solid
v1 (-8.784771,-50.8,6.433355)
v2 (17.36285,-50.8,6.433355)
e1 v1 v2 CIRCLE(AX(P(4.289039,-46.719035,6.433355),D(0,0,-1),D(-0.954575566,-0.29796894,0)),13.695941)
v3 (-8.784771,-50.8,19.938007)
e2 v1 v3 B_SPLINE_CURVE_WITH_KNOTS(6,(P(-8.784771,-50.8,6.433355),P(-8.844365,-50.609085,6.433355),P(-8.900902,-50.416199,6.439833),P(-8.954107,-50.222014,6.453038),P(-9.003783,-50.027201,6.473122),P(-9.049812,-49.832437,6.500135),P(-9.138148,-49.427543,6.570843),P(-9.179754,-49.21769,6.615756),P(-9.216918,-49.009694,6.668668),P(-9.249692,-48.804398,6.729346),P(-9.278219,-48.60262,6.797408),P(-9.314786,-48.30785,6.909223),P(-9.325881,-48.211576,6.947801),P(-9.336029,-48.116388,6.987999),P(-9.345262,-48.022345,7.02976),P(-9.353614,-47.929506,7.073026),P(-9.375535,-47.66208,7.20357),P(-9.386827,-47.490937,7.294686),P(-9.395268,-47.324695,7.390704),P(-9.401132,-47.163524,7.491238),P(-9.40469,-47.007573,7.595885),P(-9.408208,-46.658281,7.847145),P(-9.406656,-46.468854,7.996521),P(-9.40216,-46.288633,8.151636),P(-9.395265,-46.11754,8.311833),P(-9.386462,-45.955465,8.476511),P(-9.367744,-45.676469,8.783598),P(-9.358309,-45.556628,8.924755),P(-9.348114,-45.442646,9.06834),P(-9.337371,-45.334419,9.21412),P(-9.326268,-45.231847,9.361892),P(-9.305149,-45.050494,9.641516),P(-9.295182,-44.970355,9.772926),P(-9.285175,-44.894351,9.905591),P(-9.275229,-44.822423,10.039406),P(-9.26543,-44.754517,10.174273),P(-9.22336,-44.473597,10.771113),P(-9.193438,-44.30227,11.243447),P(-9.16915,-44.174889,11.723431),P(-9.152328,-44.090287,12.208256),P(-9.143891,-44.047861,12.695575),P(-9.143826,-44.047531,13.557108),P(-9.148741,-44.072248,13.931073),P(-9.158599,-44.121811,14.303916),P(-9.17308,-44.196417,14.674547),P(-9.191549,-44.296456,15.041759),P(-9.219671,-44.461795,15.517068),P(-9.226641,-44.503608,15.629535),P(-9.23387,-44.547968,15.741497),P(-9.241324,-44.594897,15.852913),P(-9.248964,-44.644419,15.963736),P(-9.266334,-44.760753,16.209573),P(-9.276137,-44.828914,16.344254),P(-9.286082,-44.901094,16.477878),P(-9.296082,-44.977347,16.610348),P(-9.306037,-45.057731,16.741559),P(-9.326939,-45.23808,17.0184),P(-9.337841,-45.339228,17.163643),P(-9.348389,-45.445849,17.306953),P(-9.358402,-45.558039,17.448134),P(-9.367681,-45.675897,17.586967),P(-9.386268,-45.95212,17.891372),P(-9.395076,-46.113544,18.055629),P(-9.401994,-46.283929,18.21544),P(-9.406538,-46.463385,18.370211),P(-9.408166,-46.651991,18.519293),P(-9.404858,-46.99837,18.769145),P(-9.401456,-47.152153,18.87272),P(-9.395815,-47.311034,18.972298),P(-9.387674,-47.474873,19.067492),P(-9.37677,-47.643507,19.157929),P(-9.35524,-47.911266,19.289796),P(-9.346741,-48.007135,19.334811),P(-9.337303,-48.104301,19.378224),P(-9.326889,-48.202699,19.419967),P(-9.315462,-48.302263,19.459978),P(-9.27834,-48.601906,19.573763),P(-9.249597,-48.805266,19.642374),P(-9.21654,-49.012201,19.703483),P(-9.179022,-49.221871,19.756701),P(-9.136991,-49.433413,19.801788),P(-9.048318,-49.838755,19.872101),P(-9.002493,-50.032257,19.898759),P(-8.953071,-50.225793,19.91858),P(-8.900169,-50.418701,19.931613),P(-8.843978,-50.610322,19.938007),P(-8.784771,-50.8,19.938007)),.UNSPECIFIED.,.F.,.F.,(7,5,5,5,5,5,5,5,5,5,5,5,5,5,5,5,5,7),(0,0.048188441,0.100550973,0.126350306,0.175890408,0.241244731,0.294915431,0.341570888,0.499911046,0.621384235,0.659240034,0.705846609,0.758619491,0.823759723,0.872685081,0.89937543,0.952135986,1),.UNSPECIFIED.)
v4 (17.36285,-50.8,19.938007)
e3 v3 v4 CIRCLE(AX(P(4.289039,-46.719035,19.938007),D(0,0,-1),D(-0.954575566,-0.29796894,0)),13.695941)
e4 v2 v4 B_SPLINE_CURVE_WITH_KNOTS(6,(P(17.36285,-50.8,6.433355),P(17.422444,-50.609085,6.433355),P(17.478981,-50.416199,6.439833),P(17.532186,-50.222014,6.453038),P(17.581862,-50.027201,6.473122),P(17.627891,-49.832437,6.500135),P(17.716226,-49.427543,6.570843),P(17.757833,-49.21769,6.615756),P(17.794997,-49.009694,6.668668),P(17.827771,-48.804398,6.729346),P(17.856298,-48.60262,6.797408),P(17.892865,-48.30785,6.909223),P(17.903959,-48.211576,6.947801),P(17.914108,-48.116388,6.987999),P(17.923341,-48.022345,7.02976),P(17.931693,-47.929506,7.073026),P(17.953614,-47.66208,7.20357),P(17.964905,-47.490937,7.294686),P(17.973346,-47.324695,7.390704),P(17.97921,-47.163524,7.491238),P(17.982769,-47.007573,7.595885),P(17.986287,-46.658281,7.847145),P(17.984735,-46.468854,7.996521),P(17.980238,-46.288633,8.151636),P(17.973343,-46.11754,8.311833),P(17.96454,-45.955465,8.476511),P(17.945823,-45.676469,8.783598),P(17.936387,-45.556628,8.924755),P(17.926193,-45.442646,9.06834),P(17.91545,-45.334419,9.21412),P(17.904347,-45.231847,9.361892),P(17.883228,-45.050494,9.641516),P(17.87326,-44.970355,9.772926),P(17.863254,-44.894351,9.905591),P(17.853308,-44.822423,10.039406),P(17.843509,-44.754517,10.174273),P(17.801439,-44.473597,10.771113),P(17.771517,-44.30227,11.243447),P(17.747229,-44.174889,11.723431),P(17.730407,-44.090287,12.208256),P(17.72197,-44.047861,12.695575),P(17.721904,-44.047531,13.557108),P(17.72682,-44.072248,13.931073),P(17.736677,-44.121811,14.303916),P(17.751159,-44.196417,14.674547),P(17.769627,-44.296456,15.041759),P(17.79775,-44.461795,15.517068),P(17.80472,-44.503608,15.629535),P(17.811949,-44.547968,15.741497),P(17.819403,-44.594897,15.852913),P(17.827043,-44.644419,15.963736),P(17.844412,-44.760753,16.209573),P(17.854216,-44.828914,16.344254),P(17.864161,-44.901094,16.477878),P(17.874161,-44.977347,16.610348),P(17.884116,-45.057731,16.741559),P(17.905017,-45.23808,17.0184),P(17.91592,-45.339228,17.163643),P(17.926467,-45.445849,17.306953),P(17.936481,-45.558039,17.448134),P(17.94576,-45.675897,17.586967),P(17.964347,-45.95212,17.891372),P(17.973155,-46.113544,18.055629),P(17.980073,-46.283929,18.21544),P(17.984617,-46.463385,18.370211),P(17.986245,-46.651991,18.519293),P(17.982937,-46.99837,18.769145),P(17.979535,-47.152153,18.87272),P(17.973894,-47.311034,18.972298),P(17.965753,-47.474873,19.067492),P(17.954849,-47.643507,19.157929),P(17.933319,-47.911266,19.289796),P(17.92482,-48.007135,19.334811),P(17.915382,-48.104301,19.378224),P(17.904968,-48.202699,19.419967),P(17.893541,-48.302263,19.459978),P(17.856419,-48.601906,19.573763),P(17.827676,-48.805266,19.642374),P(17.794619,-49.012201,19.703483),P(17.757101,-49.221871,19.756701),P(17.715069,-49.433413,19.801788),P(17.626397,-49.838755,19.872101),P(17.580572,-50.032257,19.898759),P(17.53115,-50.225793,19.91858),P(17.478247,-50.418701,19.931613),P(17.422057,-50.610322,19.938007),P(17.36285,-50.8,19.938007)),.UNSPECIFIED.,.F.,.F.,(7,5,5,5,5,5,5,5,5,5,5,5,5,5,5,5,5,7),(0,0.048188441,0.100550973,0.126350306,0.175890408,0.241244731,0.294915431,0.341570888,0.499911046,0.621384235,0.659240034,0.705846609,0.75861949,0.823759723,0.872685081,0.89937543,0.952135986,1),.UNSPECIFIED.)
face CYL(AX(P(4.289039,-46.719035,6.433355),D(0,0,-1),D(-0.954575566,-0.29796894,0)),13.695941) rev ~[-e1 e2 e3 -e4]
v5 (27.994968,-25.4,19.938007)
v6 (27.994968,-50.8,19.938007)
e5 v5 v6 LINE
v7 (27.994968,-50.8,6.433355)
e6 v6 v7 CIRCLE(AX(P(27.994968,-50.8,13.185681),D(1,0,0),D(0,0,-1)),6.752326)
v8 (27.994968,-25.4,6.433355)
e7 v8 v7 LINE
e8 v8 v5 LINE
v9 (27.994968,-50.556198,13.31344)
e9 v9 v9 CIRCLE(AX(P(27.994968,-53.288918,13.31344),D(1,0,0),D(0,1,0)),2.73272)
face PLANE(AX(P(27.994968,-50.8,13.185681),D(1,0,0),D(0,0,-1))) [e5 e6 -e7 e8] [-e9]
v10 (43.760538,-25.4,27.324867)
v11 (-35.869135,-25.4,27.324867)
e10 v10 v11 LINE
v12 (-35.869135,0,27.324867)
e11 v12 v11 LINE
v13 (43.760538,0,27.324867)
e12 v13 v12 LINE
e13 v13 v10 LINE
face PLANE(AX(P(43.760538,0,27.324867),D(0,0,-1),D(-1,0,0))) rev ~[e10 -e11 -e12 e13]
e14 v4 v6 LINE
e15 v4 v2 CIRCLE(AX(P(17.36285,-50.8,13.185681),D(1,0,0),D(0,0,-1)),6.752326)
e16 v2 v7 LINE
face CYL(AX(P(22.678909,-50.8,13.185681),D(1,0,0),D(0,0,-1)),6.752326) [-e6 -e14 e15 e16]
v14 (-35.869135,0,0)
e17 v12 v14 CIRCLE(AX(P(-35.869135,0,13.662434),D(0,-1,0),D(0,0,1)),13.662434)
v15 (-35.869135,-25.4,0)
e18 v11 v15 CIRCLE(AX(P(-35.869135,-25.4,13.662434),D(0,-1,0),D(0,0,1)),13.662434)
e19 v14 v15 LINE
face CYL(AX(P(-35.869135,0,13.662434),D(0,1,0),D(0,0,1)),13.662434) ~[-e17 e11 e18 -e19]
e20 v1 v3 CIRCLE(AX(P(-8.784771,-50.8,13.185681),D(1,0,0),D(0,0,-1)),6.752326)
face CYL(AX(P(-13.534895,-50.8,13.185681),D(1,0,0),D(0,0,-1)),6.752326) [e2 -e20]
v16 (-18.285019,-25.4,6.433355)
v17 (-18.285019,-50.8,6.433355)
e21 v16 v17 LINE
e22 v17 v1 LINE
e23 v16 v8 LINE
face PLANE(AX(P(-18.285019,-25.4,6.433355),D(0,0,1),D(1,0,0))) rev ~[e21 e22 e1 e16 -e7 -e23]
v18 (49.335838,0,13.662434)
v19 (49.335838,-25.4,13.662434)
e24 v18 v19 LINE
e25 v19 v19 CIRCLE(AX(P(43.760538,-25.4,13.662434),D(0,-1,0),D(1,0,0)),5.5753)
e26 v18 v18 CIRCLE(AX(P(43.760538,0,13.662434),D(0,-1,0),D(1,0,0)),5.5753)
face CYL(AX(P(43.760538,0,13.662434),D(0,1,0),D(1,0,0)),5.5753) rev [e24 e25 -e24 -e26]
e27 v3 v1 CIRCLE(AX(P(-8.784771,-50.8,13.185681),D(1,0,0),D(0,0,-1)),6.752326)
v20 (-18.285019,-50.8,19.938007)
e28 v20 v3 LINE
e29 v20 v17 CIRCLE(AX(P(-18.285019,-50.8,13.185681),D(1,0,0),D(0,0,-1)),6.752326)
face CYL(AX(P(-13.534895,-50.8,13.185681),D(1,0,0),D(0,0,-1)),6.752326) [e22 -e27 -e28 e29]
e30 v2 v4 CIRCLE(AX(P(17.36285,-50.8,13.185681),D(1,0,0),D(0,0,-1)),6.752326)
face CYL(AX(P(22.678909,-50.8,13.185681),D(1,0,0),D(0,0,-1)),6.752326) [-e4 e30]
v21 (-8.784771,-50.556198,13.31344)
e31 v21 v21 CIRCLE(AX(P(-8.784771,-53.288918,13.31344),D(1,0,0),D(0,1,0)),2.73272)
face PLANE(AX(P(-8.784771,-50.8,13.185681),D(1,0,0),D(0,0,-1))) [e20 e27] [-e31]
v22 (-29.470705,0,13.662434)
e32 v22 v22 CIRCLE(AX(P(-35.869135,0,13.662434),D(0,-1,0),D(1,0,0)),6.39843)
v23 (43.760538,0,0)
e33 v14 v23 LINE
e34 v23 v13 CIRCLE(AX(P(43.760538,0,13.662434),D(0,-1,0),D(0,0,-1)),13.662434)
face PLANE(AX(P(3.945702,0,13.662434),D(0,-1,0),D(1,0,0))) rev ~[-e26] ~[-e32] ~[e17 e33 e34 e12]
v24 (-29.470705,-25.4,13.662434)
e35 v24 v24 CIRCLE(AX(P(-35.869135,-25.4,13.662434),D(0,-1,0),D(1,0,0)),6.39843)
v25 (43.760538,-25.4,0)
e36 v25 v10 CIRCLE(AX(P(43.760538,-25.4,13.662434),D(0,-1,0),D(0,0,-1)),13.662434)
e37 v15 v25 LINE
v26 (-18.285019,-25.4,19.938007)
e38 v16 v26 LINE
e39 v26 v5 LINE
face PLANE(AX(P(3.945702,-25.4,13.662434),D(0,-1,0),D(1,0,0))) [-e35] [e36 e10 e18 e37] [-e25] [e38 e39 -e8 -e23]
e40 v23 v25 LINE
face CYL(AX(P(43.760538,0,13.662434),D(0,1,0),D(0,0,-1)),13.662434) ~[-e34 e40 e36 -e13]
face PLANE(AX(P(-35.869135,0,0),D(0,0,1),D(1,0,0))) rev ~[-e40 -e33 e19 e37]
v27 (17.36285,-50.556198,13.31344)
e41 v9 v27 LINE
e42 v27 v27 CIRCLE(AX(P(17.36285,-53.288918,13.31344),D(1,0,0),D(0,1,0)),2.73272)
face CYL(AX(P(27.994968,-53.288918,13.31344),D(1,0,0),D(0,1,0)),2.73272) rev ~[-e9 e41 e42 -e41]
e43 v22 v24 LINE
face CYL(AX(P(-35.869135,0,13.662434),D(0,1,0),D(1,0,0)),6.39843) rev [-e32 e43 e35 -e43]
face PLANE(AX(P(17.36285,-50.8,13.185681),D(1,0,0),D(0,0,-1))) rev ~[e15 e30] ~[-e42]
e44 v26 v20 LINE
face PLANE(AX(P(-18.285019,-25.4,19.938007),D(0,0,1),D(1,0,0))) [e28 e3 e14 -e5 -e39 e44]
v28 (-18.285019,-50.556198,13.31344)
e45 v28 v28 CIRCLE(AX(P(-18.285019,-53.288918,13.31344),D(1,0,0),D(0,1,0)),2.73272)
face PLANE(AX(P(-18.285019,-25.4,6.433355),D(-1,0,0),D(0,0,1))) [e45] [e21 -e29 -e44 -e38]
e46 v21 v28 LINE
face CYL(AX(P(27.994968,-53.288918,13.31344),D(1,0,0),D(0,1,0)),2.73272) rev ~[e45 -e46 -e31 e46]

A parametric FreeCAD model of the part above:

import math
import FreeCAD as App
import Part
import Sketcher
from FreeCAD import Vector
Q = App.Units.Quantity


def add_polygon(sketch, points):
    """Adds a closed chain of lines whose ends are joined by coincident constraints."""
    first, n = sketch.GeometryCount, len(points)
    for a, b in zip(points, points[1:] + points[:1]):
        sketch.addGeometry(Part.LineSegment(App.Vector(*a, 0), App.Vector(*b, 0)), False)
    for i in range(n):
        sketch.addConstraint(Sketcher.Constraint("Coincident", first + i, 2, first + (i + 1) % n, 1))

doc = App.newDocument("Part")
params = doc.addObject("Spreadsheet::Sheet", "Params")
for row, (alias, value) in enumerate([
    ("sketch1_diameter", "0.439 in"),
    ("pad1_length", "1 in"),
    ("pad2_length", "1 in"),
    ("pocket1_length", "2.73 in"),
    ("revolution_angle", "360 deg"),
    ("revolution2_angle", "360 deg"),
    ("pocket2_length", "7.19 in"),
], start=1):
    params.set(f"A{row}", alias)
    params.set(f"B{row}", "=" + value)
    params.setAlias(f"B{row}", alias)

body = doc.addObject("PartDesign::Body", "Body")

sketch1 = body.newObject("Sketcher::SketchObject", "Sketch")
sketch1.AttachmentSupport = (doc.getObject("XZ_Plane"), [""])
sketch1.MapMode = "FlatFace"
sketch1.addGeometry([
    Part.LineSegment(Vector(44, 27, 0), Vector(-36, 27, 0)),
    Part.ArcOfCircle(Part.Circle(Vector(-36, 14, 0), Vector(0, 0, 1), 14), math.radians(90), math.radians(270)),
    Part.LineSegment(Vector(-36, 0, 0), Vector(44, 0, 0)),
    Part.ArcOfCircle(Part.Circle(Vector(44, 14, 0), Vector(0, 0, 1), 14), math.radians(-90), math.radians(90)),
    Part.Circle(Vector(-36, 14, 0), Vector(0, 0, 1), 6),
    Part.Circle(Vector(44, 14, 0), Vector(0, 0, 1), 6),
], False)
sketch1.addConstraint([
    Sketcher.Constraint("Tangent", 0, 2, 1, 1),
    Sketcher.Constraint("Tangent", 1, 2, 2, 1),
    Sketcher.Constraint("Tangent", 2, 2, 3, 1),
    Sketcher.Constraint("Tangent", 3, 2, 0, 1),
    Sketcher.Constraint("Horizontal", 0),
    Sketcher.Constraint("Horizontal", 2),
    Sketcher.Constraint("Coincident", 4, 3, 1, 3),
    Sketcher.Constraint("Coincident", 5, 3, 3, 3),
    Sketcher.Constraint("PointOnObject", 1, 2, -1),
    Sketcher.Constraint("Diameter", 5, Q("0.439 in")),
    Sketcher.Constraint("Diameter", 4, 12.79686),
    Sketcher.Constraint("Radius", 1, 13.662434),
    Sketcher.Constraint("DistanceX", 0, 2, 0, 1, 79.629673),
    Sketcher.Constraint("DistanceX", -1, 1, 3, 3, 43.760538),
])
sketch1.setExpression("Constraints[9]", "Params.sketch1_diameter")
pad1 = body.newObject("PartDesign::Pad", "Pad")
pad1.Profile = sketch1
pad1.setExpression("Length", "Params.pad1_length")

sketch2 = body.newObject("Sketcher::SketchObject", "Sketch001")
sketch2.AttachmentSupport = (doc.getObject("XZ_Plane"), [""])
sketch2.MapMode = "FlatFace"
sketch2.AttachmentOffset = App.Placement(Vector(0, 0, 1 * 25.4), App.Rotation())
add_polygon(sketch2, [(-18, 20), (-18, 6), (28, 6), (28, 20)])
sketch2.addConstraint([
    Sketcher.Constraint("Vertical", 0),
    Sketcher.Constraint("Horizontal", 1),
    Sketcher.Constraint("Vertical", 2),
    Sketcher.Constraint("Horizontal", 3),
    Sketcher.Constraint("DistanceY", 0, 2, 0, 1, 13.504652),
    Sketcher.Constraint("DistanceX", 1, 1, 1, 2, 46.279987),
    Sketcher.Constraint("DistanceX", 0, 2, -1, 1, 18.285019),
    Sketcher.Constraint("DistanceY", -1, 1, 0, 2, 6.433355),
])
pad2 = body.newObject("PartDesign::Pad", "Pad001")
pad2.Profile = sketch2
pad2.setExpression("Length", "Params.pad2_length")

sketch3 = body.newObject("Sketcher::SketchObject", "Sketch002")
sketch3.AttachmentSupport = (doc.getObject("XY_Plane"), [""])
sketch3.MapMode = "FlatFace"
sketch3.AttachmentOffset = App.Placement(Vector(0, 0, 6.433355), App.Rotation())
sketch3.addGeometry([
    Part.LineSegment(Vector(17, -51, 0), Vector(-9, -51, 0)),
    Part.ArcOfCircle(Part.Circle(Vector(4, -47, 0), Vector(0, 0, 1), 14), math.radians(-17), math.radians(197)),
], False)
sketch3.addConstraint([
    Sketcher.Constraint("Coincident", 0, 1, 1, 1),
    Sketcher.Constraint("Coincident", 1, 2, 0, 2),
    Sketcher.Constraint("Horizontal", 0),
    Sketcher.Constraint("DistanceY", 0, 1, -1, 1, Q("2 in")),
    Sketcher.Constraint("Radius", 1, 13.695941),
    Sketcher.Constraint("DistanceX", 0, 2, 0, 1, 26.147621),
    Sketcher.Constraint("DistanceX", -1, 1, 1, 3, 4.289039),
])
pocket1 = body.newObject("PartDesign::Pocket", "Pocket")
pocket1.Profile = sketch3
pocket1.setExpression("Length", "Params.pocket1_length")
pocket1.Reversed = True

sketch4 = body.newObject("Sketcher::SketchObject", "Sketch003")
sketch4.AttachmentSupport = (doc.getObject("XZ_Plane"), [""])
sketch4.MapMode = "FlatFace"
sketch4.AttachmentOffset = App.Placement(Vector(0, 0, 2 * 25.4), App.Rotation())
add_polygon(sketch4, [(-18, 13), (-18, 6), (-9, 6), (-9, 13)])
sketch4.addGeometry(Part.LineSegment(Vector(-18, 13, 0), Vector(-9, 13, 0)), True)
sketch4.addConstraint([
    Sketcher.Constraint("Vertical", 0),
    Sketcher.Constraint("Horizontal", 1),
    Sketcher.Constraint("Vertical", 2),
    Sketcher.Constraint("Horizontal", 3),
    Sketcher.Constraint("Horizontal", 4),
    Sketcher.Constraint("Coincident", 4, 1, 3, 2),
    Sketcher.Constraint("Vertical", 1, 2, 4, 2),
    Sketcher.Constraint("DistanceX", 1, 1, 1, 2, 9.500248),
    Sketcher.Constraint("DistanceY", 0, 2, 0, 1, 6.752326),
    Sketcher.Constraint("DistanceX", 0, 2, -1, 1, 18.285019),
    Sketcher.Constraint("DistanceY", -1, 1, 2, 2, 13.185681),
])
revolution = body.newObject("PartDesign::Revolution", "Revolution")
revolution.Profile = sketch4
revolution.ReferenceAxis = (sketch4, ["Axis0"])
revolution.setExpression("Angle", "Params.revolution_angle")

sketch5 = body.newObject("Sketcher::SketchObject", "Sketch004")
sketch5.AttachmentSupport = (doc.getObject("XZ_Plane"), [""])
sketch5.MapMode = "FlatFace"
sketch5.AttachmentOffset = App.Placement(Vector(0, 0, 2 * 25.4), App.Rotation())
add_polygon(sketch5, [(17, 13), (17, 6), (28, 6), (28, 13)])
sketch5.addGeometry(Part.LineSegment(Vector(17, 13, 0), Vector(28, 13, 0)), True)
sketch5.addConstraint([
    Sketcher.Constraint("Vertical", 0),
    Sketcher.Constraint("Horizontal", 1),
    Sketcher.Constraint("Vertical", 2),
    Sketcher.Constraint("Horizontal", 3),
    Sketcher.Constraint("Horizontal", 4),
    Sketcher.Constraint("Coincident", 4, 1, 3, 2),
    Sketcher.Constraint("Vertical", 1, 2, 4, 2),
    Sketcher.Constraint("DistanceX", 1, 1, 1, 2, 10.632118),
    Sketcher.Constraint("DistanceY", 0, 2, 0, 1, 6.752326),
    Sketcher.Constraint("DistanceX", -1, 1, 0, 2, 17.36285),
    Sketcher.Constraint("DistanceY", -1, 1, 2, 2, 13.185681),
])
revolution2 = body.newObject("PartDesign::Revolution", "Revolution001")
revolution2.Profile = sketch5
revolution2.ReferenceAxis = (sketch5, ["Axis0"])
revolution2.setExpression("Angle", "Params.revolution2_angle")

sketch6 = body.newObject("Sketcher::SketchObject", "Sketch005")
sketch6.AttachmentSupport = (doc.getObject("YZ_Plane"), [""])
sketch6.MapMode = "FlatFace"
sketch6.AttachmentOffset = App.Placement(Vector(0, 0, 27.994968), App.Rotation())
sketch6.addGeometry(Part.Circle(Vector(-53.3, 13.3, 0), Vector(0, 0, 1), 2.7), False)
sketch6.addConstraint([
    Sketcher.Constraint("Diameter", 0, 5.465441),
    Sketcher.Constraint("DistanceY", -1, 1, 0, 3, 13.31344),
    Sketcher.Constraint("DistanceX", 0, 3, -1, 1, 53.288918),
])
pocket2 = body.newObject("PartDesign::Pocket", "Pocket001")
pocket2.Profile = sketch6
pocket2.setExpression("Length", "Params.pocket2_length")

doc.recompute()
